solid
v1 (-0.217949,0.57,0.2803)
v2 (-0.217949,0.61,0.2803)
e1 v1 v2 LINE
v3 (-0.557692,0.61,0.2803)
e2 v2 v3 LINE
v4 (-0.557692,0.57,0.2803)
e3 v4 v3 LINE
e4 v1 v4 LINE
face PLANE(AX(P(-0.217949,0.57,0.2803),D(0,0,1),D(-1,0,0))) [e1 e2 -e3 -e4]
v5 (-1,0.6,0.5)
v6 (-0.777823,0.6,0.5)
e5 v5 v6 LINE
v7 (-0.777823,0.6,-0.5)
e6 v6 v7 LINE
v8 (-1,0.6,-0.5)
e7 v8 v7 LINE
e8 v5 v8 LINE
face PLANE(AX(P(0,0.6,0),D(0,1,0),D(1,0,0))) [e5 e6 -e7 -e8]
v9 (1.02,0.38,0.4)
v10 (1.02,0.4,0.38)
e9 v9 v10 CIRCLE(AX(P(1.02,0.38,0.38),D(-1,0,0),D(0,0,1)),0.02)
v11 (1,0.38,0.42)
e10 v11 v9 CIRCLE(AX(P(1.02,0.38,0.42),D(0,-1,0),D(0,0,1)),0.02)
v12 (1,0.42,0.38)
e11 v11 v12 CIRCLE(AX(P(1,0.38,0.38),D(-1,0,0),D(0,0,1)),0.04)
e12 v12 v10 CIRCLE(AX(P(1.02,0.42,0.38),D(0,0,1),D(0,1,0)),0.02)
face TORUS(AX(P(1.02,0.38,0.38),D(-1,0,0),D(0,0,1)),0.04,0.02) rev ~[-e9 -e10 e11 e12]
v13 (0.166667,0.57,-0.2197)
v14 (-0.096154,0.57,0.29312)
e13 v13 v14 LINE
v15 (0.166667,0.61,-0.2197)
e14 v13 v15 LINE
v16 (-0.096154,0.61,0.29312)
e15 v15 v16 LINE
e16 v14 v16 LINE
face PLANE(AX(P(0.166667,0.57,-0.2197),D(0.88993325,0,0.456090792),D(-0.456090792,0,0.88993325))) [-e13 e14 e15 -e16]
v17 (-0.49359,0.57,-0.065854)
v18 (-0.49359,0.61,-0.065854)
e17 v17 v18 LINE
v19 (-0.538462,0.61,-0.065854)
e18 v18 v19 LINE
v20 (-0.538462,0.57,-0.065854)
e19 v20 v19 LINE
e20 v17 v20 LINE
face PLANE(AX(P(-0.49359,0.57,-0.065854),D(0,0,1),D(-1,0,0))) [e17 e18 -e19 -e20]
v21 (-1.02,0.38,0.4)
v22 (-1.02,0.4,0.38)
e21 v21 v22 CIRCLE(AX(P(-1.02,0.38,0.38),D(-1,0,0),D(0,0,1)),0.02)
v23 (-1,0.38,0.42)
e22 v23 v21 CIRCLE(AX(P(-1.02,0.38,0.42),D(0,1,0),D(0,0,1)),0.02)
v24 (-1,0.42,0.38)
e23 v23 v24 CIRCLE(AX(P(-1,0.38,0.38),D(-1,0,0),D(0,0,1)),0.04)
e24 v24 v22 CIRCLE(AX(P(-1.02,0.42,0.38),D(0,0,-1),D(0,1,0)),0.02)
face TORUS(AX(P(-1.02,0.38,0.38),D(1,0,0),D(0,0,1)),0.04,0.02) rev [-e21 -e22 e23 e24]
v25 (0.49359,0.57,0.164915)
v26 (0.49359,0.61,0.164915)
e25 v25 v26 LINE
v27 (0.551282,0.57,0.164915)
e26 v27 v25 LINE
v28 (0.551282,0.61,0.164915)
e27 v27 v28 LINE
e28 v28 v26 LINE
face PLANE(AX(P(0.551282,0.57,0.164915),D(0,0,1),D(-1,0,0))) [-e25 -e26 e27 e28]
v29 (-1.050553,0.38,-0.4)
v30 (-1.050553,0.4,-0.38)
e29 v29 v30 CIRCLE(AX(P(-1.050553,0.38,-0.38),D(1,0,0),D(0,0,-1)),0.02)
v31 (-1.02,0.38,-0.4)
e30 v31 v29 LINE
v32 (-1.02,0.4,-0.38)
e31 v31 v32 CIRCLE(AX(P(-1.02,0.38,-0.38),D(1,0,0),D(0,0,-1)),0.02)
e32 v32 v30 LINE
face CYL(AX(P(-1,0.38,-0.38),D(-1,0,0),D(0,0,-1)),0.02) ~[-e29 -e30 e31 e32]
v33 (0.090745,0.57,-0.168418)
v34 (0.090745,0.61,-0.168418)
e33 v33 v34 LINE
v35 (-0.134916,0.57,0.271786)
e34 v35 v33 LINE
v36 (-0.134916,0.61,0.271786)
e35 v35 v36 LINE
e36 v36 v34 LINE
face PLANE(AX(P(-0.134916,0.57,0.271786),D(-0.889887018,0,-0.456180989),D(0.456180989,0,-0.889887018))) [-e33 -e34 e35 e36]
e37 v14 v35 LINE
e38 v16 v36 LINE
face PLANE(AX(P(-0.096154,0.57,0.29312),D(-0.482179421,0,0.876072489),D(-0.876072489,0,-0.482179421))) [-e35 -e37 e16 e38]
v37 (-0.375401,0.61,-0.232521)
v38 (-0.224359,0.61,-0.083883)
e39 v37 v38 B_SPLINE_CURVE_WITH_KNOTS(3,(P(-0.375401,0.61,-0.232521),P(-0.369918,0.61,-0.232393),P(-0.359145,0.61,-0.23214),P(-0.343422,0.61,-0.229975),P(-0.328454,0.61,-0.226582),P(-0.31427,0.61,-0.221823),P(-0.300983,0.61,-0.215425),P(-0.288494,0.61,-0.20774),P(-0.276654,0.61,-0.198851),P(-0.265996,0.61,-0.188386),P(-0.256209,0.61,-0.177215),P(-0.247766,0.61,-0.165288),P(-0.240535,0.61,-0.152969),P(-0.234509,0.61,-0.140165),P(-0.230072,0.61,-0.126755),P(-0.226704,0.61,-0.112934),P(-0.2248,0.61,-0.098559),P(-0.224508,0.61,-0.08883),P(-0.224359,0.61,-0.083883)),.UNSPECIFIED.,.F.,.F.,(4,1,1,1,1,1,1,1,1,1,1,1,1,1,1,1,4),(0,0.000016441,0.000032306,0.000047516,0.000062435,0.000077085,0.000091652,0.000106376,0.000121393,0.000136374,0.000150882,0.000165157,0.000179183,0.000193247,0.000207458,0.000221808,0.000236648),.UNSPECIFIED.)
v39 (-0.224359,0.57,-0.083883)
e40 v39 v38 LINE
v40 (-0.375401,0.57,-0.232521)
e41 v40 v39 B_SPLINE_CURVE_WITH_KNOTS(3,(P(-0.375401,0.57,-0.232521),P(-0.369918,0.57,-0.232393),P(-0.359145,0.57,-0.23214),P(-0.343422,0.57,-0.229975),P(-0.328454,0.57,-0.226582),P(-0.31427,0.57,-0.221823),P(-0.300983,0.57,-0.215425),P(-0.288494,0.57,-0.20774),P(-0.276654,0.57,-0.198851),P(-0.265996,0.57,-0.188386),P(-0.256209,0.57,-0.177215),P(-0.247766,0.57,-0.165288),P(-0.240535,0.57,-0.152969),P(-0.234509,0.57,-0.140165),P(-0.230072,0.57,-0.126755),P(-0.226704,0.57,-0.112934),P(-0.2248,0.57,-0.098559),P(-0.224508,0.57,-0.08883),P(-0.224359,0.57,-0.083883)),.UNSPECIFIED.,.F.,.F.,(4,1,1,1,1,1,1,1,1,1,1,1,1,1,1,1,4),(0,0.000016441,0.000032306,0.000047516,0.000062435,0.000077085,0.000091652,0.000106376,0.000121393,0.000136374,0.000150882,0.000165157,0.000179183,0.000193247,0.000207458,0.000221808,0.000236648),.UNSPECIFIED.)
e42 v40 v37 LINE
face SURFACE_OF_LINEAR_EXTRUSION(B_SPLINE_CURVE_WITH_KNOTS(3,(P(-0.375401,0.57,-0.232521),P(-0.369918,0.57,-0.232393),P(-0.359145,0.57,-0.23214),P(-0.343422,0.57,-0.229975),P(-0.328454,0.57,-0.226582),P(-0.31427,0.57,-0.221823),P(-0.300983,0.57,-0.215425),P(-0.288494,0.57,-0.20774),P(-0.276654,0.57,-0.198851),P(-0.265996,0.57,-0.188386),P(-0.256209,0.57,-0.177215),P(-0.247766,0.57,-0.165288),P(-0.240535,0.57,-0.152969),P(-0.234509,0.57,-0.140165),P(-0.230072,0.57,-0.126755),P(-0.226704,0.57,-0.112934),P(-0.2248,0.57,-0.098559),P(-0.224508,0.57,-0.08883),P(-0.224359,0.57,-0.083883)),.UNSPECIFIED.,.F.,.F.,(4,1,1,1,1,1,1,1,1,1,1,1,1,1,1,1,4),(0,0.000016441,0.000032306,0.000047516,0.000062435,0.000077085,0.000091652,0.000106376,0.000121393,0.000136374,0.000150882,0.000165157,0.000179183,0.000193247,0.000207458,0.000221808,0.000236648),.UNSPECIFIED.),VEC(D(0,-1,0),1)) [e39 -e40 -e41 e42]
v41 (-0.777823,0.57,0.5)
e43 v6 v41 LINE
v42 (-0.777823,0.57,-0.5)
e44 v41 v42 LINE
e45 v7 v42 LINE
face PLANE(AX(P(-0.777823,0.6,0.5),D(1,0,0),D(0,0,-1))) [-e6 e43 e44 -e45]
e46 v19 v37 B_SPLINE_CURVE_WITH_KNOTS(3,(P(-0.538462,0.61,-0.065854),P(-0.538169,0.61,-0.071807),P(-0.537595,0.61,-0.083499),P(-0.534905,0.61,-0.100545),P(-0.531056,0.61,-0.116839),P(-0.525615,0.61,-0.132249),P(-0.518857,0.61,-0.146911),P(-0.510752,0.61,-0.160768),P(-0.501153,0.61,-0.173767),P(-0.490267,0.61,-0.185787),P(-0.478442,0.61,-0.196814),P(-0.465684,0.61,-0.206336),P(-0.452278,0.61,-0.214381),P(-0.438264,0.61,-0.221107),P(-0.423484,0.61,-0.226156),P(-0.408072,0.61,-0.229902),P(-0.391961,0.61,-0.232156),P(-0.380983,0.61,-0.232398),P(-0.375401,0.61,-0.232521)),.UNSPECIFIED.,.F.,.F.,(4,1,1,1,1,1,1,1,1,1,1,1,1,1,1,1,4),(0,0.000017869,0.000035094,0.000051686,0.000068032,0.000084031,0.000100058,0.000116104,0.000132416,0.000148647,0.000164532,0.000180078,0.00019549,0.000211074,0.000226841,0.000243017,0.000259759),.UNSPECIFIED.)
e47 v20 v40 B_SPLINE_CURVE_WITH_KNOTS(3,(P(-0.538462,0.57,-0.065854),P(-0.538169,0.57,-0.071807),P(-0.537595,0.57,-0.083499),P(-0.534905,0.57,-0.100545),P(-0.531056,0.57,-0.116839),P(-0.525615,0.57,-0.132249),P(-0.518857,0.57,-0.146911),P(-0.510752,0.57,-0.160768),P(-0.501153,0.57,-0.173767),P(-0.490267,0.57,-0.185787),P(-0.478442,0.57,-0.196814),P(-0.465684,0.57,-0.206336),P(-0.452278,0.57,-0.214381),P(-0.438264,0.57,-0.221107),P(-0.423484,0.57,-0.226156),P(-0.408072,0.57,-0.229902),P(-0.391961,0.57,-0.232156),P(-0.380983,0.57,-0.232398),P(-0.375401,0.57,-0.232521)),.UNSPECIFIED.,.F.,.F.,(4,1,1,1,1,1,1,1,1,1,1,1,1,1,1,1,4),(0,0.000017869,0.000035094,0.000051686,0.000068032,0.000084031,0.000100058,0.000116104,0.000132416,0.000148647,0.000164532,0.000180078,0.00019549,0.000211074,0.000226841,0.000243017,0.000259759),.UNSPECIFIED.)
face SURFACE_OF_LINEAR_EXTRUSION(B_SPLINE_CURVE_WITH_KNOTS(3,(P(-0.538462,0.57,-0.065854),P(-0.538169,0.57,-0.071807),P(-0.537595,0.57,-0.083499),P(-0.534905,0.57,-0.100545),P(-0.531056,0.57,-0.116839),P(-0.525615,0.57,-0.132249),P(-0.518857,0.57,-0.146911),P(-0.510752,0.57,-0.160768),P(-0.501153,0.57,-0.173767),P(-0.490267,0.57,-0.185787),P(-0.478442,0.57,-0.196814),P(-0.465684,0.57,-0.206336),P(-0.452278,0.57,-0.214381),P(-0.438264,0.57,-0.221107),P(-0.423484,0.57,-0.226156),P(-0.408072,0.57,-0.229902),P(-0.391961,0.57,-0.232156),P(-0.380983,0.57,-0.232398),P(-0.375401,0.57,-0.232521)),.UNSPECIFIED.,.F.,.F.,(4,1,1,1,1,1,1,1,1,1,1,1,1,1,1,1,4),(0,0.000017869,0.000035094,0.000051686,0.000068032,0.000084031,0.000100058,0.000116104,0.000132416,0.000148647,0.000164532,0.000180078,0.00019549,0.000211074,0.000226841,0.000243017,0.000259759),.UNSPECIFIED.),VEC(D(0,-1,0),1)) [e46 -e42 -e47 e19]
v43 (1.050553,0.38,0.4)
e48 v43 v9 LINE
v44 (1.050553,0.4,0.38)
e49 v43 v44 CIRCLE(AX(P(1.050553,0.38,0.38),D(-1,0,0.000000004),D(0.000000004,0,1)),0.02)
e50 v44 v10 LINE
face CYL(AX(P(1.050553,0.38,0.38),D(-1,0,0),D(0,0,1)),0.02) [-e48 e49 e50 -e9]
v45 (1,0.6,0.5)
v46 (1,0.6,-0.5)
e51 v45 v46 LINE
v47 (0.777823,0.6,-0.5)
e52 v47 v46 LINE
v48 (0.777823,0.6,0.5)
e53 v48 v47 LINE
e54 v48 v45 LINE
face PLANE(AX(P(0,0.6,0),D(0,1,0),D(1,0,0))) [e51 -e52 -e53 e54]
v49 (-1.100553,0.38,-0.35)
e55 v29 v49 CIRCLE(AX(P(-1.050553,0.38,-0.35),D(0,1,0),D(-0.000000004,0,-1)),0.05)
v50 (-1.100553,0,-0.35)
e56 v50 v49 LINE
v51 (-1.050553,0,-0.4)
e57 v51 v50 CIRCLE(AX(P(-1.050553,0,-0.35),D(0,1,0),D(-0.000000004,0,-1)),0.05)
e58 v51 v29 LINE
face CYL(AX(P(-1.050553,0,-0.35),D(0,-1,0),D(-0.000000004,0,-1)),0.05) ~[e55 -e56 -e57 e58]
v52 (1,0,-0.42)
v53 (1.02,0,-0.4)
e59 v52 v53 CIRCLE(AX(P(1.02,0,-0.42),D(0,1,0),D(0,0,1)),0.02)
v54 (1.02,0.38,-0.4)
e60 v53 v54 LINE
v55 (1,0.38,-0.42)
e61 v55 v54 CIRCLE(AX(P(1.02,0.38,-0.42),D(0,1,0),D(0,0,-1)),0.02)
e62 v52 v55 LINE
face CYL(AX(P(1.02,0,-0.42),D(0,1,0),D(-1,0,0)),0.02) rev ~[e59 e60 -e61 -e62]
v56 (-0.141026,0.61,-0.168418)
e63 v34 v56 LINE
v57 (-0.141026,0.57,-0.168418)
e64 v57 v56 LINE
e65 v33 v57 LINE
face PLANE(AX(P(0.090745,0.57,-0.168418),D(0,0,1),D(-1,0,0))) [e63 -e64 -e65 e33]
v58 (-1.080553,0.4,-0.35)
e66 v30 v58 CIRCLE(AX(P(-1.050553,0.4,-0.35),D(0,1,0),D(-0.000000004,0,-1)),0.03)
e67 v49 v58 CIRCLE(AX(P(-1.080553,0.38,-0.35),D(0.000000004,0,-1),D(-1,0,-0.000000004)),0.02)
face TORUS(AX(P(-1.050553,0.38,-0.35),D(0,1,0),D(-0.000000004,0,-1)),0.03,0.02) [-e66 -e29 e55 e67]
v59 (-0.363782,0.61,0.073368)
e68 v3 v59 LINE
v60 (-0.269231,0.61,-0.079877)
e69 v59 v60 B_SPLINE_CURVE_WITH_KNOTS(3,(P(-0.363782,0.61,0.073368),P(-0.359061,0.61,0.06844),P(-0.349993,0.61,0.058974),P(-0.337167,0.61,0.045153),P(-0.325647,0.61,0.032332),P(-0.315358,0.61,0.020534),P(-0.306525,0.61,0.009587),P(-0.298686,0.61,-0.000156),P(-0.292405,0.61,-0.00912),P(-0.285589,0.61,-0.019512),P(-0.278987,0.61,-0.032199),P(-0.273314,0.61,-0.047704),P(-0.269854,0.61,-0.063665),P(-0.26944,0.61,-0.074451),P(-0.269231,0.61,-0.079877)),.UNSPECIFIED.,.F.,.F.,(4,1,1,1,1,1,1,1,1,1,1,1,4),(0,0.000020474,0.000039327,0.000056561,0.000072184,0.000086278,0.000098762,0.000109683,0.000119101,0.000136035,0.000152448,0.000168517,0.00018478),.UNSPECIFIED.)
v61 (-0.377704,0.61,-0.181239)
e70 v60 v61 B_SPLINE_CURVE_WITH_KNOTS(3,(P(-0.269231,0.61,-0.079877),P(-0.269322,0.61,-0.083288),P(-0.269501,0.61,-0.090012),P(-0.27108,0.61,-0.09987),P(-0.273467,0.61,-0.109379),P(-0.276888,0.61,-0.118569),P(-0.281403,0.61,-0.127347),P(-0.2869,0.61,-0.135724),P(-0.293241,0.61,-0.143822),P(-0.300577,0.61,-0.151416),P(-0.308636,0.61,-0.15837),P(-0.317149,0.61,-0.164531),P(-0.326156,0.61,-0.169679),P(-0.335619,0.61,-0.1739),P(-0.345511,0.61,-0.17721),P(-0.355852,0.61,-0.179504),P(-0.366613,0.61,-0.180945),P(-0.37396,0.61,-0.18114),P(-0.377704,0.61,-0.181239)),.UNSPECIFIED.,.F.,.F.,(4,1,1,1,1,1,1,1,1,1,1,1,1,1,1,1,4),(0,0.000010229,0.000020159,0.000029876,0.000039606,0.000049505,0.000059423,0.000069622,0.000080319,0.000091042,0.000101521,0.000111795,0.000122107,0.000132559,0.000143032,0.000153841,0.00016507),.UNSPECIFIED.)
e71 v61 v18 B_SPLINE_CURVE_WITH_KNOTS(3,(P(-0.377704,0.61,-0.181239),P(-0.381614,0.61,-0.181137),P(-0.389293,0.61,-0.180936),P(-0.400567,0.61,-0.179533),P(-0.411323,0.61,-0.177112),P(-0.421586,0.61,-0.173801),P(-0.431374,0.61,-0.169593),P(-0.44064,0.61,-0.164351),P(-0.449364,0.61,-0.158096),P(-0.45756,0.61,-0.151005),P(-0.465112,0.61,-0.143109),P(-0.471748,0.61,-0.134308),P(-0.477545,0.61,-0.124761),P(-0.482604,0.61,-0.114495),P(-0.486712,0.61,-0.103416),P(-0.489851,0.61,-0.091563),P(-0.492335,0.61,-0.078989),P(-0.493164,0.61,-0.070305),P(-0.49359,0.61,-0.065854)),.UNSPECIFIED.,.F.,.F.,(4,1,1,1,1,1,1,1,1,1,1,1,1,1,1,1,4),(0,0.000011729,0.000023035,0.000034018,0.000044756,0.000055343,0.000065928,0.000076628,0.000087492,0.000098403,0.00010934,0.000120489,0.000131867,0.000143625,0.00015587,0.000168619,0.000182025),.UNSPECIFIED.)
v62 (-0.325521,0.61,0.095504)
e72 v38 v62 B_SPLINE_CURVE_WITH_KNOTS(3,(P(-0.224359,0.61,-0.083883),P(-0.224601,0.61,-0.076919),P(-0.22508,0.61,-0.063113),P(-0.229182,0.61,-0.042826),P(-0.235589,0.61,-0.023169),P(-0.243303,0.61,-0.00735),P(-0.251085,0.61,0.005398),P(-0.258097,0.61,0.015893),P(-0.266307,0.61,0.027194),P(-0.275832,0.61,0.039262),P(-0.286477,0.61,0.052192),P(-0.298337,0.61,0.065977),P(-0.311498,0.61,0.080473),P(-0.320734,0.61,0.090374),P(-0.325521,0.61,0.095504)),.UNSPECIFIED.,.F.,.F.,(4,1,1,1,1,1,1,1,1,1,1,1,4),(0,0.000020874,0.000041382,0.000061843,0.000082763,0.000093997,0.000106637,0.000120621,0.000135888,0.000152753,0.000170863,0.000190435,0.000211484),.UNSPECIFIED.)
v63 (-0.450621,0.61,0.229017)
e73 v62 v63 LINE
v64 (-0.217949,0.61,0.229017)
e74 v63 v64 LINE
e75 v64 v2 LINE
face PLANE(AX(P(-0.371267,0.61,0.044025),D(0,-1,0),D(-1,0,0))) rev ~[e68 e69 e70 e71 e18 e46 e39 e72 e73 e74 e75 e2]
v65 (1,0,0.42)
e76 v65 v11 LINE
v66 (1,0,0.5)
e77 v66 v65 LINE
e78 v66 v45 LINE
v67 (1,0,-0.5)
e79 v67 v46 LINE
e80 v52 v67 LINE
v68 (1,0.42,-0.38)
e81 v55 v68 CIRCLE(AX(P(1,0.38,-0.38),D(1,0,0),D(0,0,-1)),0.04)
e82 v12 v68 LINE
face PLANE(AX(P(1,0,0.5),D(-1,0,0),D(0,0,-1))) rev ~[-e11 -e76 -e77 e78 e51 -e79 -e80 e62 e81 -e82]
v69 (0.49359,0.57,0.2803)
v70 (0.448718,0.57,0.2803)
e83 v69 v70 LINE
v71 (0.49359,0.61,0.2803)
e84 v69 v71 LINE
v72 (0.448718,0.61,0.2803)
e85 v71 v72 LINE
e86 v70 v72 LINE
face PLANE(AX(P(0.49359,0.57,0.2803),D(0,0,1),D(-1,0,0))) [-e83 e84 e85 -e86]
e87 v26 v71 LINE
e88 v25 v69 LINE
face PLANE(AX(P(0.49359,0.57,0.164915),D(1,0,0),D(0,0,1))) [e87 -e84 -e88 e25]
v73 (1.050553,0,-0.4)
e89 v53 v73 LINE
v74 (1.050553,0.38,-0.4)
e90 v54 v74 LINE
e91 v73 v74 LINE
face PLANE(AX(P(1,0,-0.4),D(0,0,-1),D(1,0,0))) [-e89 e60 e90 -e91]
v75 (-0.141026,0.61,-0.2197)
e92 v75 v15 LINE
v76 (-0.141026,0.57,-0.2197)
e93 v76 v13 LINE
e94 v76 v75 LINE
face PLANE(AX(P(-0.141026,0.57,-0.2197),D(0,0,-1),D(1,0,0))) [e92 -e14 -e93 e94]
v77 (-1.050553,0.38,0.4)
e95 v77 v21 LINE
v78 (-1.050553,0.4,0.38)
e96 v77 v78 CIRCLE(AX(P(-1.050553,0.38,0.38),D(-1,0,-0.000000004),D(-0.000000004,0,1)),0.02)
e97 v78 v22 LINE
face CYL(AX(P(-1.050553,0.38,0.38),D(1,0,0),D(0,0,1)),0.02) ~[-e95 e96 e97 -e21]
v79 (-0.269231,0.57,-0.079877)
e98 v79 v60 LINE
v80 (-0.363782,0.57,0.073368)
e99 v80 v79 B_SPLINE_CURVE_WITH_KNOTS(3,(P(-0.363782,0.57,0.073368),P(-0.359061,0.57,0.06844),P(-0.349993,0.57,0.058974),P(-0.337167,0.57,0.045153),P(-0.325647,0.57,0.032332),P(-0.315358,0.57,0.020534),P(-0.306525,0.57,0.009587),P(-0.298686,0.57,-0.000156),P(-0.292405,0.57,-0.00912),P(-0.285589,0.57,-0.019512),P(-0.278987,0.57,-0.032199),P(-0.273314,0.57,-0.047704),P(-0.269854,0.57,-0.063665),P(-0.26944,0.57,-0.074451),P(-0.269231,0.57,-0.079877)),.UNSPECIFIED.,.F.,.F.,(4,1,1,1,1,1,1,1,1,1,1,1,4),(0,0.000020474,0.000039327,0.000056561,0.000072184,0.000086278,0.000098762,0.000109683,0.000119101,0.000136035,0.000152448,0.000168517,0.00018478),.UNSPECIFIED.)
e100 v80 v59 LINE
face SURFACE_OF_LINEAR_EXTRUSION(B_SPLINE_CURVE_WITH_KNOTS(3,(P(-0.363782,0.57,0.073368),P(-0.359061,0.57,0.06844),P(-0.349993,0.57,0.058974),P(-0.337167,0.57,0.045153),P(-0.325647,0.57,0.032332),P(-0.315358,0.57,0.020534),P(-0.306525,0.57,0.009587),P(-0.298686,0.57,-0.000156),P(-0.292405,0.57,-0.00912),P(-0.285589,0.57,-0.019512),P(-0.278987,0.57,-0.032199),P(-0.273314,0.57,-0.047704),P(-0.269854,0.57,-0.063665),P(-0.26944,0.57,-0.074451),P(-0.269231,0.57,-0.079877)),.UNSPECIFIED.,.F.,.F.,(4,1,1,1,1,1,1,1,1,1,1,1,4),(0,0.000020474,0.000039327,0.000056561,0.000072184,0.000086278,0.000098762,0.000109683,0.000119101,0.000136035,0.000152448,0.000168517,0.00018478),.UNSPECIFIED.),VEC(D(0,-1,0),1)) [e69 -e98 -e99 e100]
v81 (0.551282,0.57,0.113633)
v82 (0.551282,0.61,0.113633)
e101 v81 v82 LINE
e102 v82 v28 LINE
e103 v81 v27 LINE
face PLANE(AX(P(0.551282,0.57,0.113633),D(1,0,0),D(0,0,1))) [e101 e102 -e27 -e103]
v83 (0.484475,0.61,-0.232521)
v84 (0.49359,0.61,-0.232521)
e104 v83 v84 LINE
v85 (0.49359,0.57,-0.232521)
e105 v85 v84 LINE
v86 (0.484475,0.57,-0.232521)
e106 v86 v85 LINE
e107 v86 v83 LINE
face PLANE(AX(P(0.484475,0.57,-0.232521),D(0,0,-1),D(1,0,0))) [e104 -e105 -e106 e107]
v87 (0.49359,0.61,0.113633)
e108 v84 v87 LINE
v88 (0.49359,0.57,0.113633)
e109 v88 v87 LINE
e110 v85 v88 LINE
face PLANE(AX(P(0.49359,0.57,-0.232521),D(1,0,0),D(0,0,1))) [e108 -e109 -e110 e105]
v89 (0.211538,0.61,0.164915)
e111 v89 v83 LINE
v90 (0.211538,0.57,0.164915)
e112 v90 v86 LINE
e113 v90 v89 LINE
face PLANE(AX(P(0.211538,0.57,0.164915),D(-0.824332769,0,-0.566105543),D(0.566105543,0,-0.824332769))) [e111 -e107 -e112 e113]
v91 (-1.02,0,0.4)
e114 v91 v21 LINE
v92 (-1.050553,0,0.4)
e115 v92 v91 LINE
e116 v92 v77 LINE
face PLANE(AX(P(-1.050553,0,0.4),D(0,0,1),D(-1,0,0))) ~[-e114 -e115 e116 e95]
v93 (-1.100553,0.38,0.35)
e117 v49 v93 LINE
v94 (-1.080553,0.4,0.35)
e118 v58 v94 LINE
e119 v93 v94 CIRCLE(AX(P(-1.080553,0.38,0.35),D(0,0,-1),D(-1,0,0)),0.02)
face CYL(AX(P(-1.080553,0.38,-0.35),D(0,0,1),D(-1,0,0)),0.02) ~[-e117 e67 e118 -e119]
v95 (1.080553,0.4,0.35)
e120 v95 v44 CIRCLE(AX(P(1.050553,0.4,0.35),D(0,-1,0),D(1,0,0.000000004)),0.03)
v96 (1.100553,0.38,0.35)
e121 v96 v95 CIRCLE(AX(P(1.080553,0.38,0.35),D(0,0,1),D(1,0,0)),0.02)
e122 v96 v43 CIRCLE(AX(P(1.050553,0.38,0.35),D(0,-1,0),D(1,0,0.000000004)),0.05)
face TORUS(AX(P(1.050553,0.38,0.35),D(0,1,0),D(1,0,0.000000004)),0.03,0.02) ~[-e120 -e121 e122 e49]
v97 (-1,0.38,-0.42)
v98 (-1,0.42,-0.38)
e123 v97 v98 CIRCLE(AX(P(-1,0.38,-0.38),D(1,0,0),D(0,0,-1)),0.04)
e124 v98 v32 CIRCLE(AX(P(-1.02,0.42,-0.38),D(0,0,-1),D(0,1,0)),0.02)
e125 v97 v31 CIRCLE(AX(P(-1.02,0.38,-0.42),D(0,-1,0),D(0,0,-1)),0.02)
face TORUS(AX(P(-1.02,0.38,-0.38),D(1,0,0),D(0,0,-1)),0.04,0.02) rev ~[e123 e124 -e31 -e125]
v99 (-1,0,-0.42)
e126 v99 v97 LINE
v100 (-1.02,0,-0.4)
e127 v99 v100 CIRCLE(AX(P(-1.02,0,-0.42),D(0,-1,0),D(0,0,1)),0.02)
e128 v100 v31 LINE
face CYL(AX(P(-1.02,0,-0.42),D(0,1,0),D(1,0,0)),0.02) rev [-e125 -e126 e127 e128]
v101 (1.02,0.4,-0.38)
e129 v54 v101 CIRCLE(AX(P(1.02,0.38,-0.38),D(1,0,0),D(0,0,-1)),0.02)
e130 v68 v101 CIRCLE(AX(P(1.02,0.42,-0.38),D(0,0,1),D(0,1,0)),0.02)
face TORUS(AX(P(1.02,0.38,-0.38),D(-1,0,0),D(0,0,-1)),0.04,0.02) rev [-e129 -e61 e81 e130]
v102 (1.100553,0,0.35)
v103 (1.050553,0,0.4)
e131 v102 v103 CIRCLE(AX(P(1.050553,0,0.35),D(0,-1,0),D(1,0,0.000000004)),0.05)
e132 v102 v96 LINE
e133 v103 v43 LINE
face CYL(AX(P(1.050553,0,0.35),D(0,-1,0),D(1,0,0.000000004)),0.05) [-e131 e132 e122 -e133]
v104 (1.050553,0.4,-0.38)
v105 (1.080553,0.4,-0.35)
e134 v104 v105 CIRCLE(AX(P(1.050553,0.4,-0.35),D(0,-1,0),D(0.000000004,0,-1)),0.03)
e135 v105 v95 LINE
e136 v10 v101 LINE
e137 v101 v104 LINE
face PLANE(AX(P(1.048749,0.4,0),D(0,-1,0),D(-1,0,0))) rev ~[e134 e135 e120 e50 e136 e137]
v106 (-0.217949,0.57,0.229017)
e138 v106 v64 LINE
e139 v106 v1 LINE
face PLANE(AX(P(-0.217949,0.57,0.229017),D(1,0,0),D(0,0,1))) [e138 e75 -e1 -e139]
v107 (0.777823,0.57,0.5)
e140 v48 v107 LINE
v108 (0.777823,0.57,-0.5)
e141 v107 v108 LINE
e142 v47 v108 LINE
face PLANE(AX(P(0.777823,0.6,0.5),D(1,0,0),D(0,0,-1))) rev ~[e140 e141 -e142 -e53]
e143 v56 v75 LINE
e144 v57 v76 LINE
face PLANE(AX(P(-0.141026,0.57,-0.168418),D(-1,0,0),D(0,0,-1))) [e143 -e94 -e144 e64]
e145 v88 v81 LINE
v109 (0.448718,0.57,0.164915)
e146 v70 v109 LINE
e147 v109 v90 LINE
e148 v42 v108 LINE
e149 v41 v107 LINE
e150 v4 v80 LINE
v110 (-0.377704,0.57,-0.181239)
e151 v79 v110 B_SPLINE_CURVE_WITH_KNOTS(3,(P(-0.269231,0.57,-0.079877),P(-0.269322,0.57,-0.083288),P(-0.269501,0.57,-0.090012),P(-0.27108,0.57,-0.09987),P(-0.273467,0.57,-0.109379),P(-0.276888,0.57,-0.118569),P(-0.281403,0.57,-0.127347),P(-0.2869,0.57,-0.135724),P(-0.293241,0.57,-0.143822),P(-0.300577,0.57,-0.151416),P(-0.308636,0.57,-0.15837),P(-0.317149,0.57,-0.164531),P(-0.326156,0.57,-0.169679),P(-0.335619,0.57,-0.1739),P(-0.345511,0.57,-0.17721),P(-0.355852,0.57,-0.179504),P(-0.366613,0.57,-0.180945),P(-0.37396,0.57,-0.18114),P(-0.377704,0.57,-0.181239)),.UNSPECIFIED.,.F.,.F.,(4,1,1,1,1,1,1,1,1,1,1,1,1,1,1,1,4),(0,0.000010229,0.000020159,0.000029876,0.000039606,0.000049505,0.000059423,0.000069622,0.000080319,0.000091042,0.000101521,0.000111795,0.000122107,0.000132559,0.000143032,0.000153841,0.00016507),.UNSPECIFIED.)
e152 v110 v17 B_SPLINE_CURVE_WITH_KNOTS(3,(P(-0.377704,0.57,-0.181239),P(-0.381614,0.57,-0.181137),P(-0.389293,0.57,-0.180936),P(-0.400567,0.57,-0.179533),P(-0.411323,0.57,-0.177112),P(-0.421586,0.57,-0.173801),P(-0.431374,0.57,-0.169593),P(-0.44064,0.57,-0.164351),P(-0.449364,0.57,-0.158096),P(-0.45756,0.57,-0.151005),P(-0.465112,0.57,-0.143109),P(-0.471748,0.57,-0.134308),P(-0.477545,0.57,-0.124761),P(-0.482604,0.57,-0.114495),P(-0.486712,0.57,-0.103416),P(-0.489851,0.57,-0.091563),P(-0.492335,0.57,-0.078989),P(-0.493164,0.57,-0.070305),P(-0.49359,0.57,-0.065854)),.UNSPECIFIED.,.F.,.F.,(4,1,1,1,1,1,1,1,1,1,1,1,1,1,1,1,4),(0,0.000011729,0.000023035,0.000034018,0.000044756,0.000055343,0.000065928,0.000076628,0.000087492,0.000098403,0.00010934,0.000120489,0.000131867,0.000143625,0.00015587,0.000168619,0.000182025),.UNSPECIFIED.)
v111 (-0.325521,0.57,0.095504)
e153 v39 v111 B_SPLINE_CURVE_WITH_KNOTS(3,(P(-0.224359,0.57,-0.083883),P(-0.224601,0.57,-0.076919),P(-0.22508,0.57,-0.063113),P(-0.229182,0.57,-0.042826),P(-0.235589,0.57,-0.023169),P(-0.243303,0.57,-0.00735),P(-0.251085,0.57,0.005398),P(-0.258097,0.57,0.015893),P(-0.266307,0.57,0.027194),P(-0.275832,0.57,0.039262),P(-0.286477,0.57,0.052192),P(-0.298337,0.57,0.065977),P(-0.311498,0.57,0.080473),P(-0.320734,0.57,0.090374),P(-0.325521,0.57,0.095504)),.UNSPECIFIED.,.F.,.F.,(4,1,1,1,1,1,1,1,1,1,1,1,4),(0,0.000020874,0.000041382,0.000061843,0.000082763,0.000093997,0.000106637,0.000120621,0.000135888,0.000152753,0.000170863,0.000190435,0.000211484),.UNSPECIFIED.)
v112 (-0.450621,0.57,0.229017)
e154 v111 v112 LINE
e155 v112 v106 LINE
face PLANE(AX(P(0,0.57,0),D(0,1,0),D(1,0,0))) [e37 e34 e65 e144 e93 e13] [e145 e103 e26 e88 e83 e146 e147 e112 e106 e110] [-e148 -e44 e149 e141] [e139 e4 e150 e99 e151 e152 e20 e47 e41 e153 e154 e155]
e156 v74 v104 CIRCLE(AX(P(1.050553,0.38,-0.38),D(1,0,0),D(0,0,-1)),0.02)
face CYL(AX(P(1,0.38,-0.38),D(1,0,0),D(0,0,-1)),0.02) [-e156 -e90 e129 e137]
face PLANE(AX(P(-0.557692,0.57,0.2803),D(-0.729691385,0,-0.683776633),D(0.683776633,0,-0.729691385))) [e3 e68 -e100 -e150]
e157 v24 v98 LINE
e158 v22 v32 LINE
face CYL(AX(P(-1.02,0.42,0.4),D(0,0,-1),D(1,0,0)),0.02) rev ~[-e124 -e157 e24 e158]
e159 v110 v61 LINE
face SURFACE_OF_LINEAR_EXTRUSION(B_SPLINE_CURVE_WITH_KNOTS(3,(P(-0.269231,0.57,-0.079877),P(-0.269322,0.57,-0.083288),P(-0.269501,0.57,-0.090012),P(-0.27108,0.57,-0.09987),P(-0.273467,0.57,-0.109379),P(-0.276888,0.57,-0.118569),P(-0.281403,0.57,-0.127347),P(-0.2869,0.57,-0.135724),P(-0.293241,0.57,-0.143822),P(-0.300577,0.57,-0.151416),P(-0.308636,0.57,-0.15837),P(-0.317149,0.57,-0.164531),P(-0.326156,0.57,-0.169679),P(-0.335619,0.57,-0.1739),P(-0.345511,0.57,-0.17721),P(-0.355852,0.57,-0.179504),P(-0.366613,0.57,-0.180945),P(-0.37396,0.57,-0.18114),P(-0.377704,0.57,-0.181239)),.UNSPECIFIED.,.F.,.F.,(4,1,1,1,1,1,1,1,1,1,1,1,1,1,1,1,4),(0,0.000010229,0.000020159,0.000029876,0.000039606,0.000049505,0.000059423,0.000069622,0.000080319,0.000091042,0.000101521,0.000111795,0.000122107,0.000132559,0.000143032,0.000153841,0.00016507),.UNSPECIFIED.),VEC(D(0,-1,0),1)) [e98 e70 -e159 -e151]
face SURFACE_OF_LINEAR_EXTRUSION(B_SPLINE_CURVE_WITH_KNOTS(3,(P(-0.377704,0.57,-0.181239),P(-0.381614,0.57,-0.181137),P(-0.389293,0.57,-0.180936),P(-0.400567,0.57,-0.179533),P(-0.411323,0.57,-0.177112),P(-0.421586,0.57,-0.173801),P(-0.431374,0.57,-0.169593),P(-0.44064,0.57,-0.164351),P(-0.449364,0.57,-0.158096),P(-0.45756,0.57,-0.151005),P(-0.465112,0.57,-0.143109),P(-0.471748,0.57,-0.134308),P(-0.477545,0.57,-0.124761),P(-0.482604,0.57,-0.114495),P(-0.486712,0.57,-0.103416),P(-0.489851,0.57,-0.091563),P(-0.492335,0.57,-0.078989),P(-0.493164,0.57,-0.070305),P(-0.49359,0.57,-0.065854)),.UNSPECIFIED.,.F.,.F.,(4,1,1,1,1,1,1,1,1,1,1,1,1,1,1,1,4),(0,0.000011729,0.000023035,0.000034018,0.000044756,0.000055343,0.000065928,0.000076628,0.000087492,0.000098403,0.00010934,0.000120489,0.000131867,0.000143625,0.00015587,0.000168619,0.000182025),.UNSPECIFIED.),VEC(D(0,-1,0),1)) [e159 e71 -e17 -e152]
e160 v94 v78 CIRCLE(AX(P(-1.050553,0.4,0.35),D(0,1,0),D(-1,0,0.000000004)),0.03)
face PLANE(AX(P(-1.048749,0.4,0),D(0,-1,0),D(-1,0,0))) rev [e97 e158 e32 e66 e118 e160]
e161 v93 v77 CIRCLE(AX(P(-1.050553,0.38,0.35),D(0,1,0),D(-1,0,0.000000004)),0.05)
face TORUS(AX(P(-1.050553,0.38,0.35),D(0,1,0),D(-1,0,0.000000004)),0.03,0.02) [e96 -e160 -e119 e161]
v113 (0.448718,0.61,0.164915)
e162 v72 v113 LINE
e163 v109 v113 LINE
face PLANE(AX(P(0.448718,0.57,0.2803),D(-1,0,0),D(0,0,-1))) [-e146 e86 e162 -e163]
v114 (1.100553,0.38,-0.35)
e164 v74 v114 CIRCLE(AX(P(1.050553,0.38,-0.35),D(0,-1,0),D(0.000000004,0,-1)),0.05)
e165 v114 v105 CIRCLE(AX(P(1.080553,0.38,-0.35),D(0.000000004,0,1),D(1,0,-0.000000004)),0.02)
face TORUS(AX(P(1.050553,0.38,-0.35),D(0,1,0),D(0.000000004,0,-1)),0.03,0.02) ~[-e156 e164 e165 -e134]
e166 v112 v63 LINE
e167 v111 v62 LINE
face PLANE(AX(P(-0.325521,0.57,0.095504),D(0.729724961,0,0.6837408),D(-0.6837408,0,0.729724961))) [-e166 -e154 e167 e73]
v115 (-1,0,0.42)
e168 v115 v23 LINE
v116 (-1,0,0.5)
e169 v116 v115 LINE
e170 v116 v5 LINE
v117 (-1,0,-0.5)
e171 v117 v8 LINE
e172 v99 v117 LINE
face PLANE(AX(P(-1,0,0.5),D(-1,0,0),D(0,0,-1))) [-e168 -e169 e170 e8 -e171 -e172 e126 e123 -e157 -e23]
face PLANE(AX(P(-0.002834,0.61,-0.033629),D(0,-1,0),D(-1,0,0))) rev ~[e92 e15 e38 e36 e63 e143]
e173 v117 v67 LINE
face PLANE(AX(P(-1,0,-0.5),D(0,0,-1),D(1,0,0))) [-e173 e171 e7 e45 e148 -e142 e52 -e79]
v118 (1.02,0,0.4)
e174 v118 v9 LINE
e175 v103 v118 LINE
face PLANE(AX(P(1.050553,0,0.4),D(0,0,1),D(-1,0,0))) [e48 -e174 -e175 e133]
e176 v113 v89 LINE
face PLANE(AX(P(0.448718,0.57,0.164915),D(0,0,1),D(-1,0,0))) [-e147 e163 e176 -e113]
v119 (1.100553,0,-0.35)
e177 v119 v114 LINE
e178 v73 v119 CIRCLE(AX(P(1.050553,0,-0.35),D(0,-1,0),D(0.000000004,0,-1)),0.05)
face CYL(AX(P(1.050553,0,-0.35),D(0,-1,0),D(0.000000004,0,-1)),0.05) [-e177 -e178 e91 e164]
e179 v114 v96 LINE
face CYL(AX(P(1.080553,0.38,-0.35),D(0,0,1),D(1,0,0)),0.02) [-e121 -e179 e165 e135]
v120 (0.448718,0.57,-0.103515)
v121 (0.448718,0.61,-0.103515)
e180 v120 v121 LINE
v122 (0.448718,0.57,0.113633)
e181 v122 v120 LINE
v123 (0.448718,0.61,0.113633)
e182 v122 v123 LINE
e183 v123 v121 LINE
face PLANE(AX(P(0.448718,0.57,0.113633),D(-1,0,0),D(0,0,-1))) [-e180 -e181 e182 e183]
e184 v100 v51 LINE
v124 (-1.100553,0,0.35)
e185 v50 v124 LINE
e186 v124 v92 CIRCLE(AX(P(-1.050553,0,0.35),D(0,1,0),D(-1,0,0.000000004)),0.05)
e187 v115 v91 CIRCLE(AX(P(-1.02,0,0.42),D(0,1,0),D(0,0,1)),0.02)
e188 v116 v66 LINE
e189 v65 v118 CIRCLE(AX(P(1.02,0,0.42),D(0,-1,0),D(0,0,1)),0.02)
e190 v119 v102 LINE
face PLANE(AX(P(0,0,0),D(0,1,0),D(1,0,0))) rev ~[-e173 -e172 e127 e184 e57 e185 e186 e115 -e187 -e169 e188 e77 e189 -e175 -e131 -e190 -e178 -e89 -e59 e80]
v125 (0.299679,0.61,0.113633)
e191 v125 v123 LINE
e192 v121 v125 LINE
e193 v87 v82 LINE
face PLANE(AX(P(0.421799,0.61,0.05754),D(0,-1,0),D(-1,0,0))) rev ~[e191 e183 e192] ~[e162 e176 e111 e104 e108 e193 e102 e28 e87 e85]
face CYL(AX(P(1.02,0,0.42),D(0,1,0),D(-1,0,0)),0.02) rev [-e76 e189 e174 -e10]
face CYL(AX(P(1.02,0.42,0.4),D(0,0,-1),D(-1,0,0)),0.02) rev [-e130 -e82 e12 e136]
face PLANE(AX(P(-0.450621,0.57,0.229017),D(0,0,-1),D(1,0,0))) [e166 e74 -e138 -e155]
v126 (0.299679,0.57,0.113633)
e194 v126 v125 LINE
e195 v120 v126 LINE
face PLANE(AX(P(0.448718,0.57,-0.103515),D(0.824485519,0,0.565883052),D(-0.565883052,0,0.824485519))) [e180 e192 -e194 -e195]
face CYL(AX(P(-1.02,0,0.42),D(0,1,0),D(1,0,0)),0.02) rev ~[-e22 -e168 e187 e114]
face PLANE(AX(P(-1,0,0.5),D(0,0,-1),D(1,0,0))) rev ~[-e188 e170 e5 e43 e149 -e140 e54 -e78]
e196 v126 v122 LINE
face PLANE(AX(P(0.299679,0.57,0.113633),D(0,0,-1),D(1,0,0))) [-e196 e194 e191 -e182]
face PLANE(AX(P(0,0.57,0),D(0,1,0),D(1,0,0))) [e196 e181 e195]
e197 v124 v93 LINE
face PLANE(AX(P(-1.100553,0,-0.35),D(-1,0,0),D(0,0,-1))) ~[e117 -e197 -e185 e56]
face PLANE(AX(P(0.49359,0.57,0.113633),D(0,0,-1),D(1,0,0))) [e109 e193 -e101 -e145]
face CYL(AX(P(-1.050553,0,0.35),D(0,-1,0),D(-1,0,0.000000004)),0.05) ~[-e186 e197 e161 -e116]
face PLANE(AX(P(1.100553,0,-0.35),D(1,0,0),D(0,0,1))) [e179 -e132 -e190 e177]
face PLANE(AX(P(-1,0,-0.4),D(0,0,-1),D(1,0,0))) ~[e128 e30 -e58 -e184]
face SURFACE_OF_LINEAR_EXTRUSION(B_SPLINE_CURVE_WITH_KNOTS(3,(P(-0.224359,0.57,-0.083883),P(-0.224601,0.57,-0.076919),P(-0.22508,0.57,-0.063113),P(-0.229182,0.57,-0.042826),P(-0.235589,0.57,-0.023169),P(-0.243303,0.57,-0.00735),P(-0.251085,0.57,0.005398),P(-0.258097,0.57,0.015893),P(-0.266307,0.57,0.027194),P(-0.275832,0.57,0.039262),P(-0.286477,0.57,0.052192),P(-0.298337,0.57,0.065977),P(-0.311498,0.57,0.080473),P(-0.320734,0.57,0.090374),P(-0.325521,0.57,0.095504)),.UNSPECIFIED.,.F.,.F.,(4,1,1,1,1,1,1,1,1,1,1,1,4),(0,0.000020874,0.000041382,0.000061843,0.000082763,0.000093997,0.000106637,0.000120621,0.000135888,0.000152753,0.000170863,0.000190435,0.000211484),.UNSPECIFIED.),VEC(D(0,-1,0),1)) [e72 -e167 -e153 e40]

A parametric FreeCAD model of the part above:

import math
import FreeCAD as App
import Part
import Sketcher
from FreeCAD import Vector


def edges_at(feature, points):
    """Names of the edges that pass closest to the given points."""
    edges = feature.Shape.Edges
    near = lambda p: min(range(len(edges)), key=lambda i: edges[i].distToShape(Part.Vertex(*p))[0])
    return sorted({f"Edge{near(p) + 1}" for p in points})


def add_polygon(sketch, points):
    """Adds a closed chain of lines whose ends are joined by coincident constraints."""
    first, n = sketch.GeometryCount, len(points)
    for a, b in zip(points, points[1:] + points[:1]):
        sketch.addGeometry(Part.LineSegment(App.Vector(*a, 0), App.Vector(*b, 0)), False)
    for i in range(n):
        sketch.addConstraint(Sketcher.Constraint("Coincident", first + i, 2, first + (i + 1) % n, 1))

doc = App.newDocument("Part")
params = doc.addObject("Spreadsheet::Sheet", "Params")
for row, (alias, value) in enumerate([
    ("sketch1_width", "2 mm"),
    ("sketch1_height", "1 mm"),
    ("pad1_length", "0.6 mm"),
    ("sketch2_height", "1 mm"),
    ("pocket1_length", "0.03 mm"),
    ("sketch3_radius", "0.05 mm"),
    ("sketch3_height", "0.8 mm"),
    ("pad2_length", "0.4 mm"),
    ("fillet_radius", "0.02 mm"),
    ("fillet2_radius", "0.02 mm"),
    ("pad3_length", "0.04 mm"),
], start=1):
    params.set(f"A{row}", alias)
    params.set(f"B{row}", "=" + value)
    params.setAlias(f"B{row}", alias)

body = doc.addObject("PartDesign::Body", "Body")

# Sketch on XZ plane
sketch1 = doc.addObject("Sketcher::SketchObject", "Sketch")
body.addObject(sketch1)
sketch1.AttachmentSupport = (doc.XZ_Plane, [""])
sketch1.MapMode = "FlatFace"
add_polygon(sketch1, [(-1, -0.5), (-1, 0.5), (1, 0.5), (1, -0.5)])  # lines 0-3
sketch1.addConstraint(Sketcher.Constraint("Vertical", 0))
sketch1.addConstraint(Sketcher.Constraint("Horizontal", 1))
sketch1.addConstraint(Sketcher.Constraint("Vertical", 2))
sketch1.addConstraint(Sketcher.Constraint("Horizontal", 3))
sketch1.addConstraint(Sketcher.Constraint("Symmetric", 0, 2, 2, 2, -1, 1))
sketch1.addConstraint(Sketcher.Constraint("DistanceX", 1, 1, 1, 2, 2.0))
sketch1.addConstraint(Sketcher.Constraint("DistanceY", 0, 1, 0, 2, 1.0))
sketch1.setExpression("Constraints[9]", "Params.sketch1_width")
sketch1.setExpression("Constraints[10]", "Params.sketch1_height")
pad1 = doc.addObject("PartDesign::Pad", "Pad")
body.addObject(pad1)
pad1.Profile = sketch1
pad1.setExpression("Length", "Params.pad1_length")
pad1.Reversed = True

# Sketch on XZ plane
sketch2 = doc.addObject("Sketcher::SketchObject", "Sketch001")
body.addObject(sketch2)
sketch2.AttachmentSupport = (doc.XZ_Plane, [""])
sketch2.MapMode = "FlatFace"
sketch2.AttachmentOffset = App.Placement(Vector(0, 0, -0.6), App.Rotation())
add_polygon(sketch2, [(-0.8, -0.5), (-0.8, 0.5), (0.8, 0.5), (0.8, -0.5)])  # lines 0-3
sketch2.addConstraint(Sketcher.Constraint("Vertical", 0))
sketch2.addConstraint(Sketcher.Constraint("Horizontal", 1))
sketch2.addConstraint(Sketcher.Constraint("Vertical", 2))
sketch2.addConstraint(Sketcher.Constraint("Horizontal", 3))
sketch2.addConstraint(Sketcher.Constraint("Symmetric", 0, 2, 2, 2, -1, 1))
sketch2.addConstraint(Sketcher.Constraint("DistanceY", 0, 1, 0, 2, 1.0))
sketch2.addConstraint(Sketcher.Constraint("DistanceX", 1, 1, 1, 2, 1.555645))
sketch2.setExpression("Constraints[9]", "Params.sketch2_height")
pocket1 = doc.addObject("PartDesign::Pocket", "Pocket")
body.addObject(pocket1)
pocket1.Profile = sketch2
pocket1.setExpression("Length", "Params.pocket1_length")
pocket1.Reversed = True

# Sketch on XZ plane
sketch3 = doc.addObject("Sketcher::SketchObject", "Sketch002")
body.addObject(sketch3)
sketch3.AttachmentSupport = (doc.XZ_Plane, [""])
sketch3.MapMode = "FlatFace"
sketch3.addGeometry(Part.LineSegment(Vector(1.05, -0.4, 0), Vector(1, -0.4, 0)), False)
sketch3.addGeometry(Part.LineSegment(Vector(1, -0.4, 0), Vector(1, 0.4, 0)), False)
sketch3.addGeometry(Part.LineSegment(Vector(1, 0.4, 0), Vector(1.05, 0.4, 0)), False)
sketch3.addGeometry(Part.ArcOfCircle(Part.Circle(Vector(1.05, 0.35, 0), Vector(0, 0, 1), 0.05), math.radians(0), math.radians(90)), False)
sketch3.addGeometry(Part.LineSegment(Vector(1.1, 0.35, 0), Vector(1.1, -0.35, 0)), False)
sketch3.addGeometry(Part.ArcOfCircle(Part.Circle(Vector(1.05, -0.35, 0), Vector(0, 0, 1), 0.05), math.radians(-90), math.radians(0)), False)
sketch3.addConstraint(Sketcher.Constraint("Coincident", 0, 2, 1, 1))
sketch3.addConstraint(Sketcher.Constraint("Coincident", 1, 2, 2, 1))
sketch3.addConstraint(Sketcher.Constraint("Tangent", 2, 2, 3, 2))
sketch3.addConstraint(Sketcher.Constraint("Tangent", 3, 1, 4, 1))
sketch3.addConstraint(Sketcher.Constraint("Tangent", 4, 2, 5, 2))
sketch3.addConstraint(Sketcher.Constraint("Tangent", 5, 1, 0, 1))
sketch3.addConstraint(Sketcher.Constraint("Horizontal", 0))
sketch3.addConstraint(Sketcher.Constraint("Vertical", 1))
sketch3.addConstraint(Sketcher.Constraint("Horizontal", 2))
sketch3.addConstraint(Sketcher.Constraint("Vertical", 4))
sketch3.addConstraint(Sketcher.Constraint("Equal", 3, 5))
sketch3.addConstraint(Sketcher.Constraint("Radius", 3, 0.05))
sketch3.addConstraint(Sketcher.Constraint("DistanceY", 1, 1, 1, 2, 0.8))
sketch3.addConstraint(Sketcher.Constraint("DistanceX", -1, 1, 0, 2, 1.0))
sketch3.addConstraint(Sketcher.Constraint("DistanceY", 0, 2, -1, 1, 0.4))
sketch3.addConstraint(Sketcher.Constraint("DistanceX", 0, 2, 0, 1, 0.050553))
sketch3.setExpression("Constraints[11]", "Params.sketch3_radius")
sketch3.setExpression("Constraints[12]", "Params.sketch3_height")
pad2 = doc.addObject("PartDesign::Pad", "Pad001")
body.addObject(pad2)
pad2.Profile = sketch3
pad2.setExpression("Length", "Params.pad2_length")
pad2.Reversed = True
doc.recompute()

fillet = doc.addObject("PartDesign::Fillet", "Fillet")
body.addObject(fillet)
fillet.Base = (pad2, edges_at(pad2, [
    (1, 0.2, -0.4),
    (1, 0.2, 0.4),
    (1, 0.4, 0),
    (1.025, 0.4, 0.4),
    (1.086, 0.4, 0.385),
    (1.101, 0.4, 0),
    (1.086, 0.4, -0.385),
    (1.025, 0.4, -0.4),
]))
fillet.setExpression("Radius", "Params.fillet_radius")
doc.recompute()

mirrored = doc.addObject("PartDesign::Mirrored", "Mirrored")
body.addObject(mirrored)
mirrored.Originals = [pad2]
mirrored.MirrorPlane = (doc.YZ_Plane, [""])
body.Tip = mirrored
doc.recompute()

fillet2 = doc.addObject("PartDesign::Fillet", "Fillet001")
body.addObject(fillet2)
fillet2.Base = (mirrored, edges_at(mirrored, [
    (-1, 0.2, -0.4),
    (-1, 0.2, 0.4),
    (-1, 0.4, 0),
    (-1.025, 0.4, 0.4),
    (-1.086, 0.4, 0.385),
    (-1.101, 0.4, 0),
    (-1.086, 0.4, -0.385),
    (-1.025, 0.4, -0.4),
]))
fillet2.setExpression("Radius", "Params.fillet2_radius")

# Sketch on XZ plane
sketch4 = doc.addObject("Sketcher::SketchObject", "Sketch003")
body.addObject(sketch4)
sketch4.AttachmentSupport = (doc.XZ_Plane, [""])
sketch4.MapMode = "FlatFace"
sketch4.AttachmentOffset = App.Placement(Vector(0, 0, -0.57), App.Rotation())
add_polygon(sketch4, [(0.49359, -0.232521), (0.484475, -0.232521), (0.211538, 0.164915), (0.448718, 0.164915), (0.448718, 0.2803), (0.49359, 0.2803), (0.49359, 0.164915), (0.551282, 0.164915), (0.551282, 0.113633), (0.49359, 0.113633)])  # lines 0-9
add_polygon(sketch4, [(0.448718, 0.113633), (0.299679, 0.113633), (0.448718, -0.103515)])  # lines 10-12
add_polygon(sketch4, [(0.166667, -0.2197), (-0.141026, -0.2197), (-0.141026, -0.168418), (0.090745, -0.168418), (-0.134916, 0.271786), (-0.096154, 0.29312)])  # lines 13-18
sketch4.addGeometry(Part.LineSegment(Vector(-0.538462, -0.065854, 0), Vector(-0.49359, -0.065854, 0)), False)  # 19
sketch4.addGeometry(Part.BSplineCurve([Vector(-0.377704, -0.181239, 0), Vector(-0.381614, -0.181137, 0), Vector(-0.389293, -0.180936, 0), Vector(-0.400567, -0.179533, 0), Vector(-0.411323, -0.177112, 0), Vector(-0.421586, -0.173801, 0), Vector(-0.431374, -0.169593, 0), Vector(-0.44064, -0.164351, 0), Vector(-0.449364, -0.158096, 0), Vector(-0.45756, -0.151005, 0), Vector(-0.465112, -0.143109, 0), Vector(-0.471748, -0.134308, 0), Vector(-0.477545, -0.124761, 0), Vector(-0.482604, -0.114495, 0), Vector(-0.486712, -0.103416, 0), Vector(-0.489851, -0.091563, 0), Vector(-0.492335, -0.078989, 0), Vector(-0.493164, -0.070305, 0), Vector(-0.49359, -0.065854, 0)], [4, 1, 1, 1, 1, 1, 1, 1, 1, 1, 1, 1, 1, 1, 1, 1, 4], [0, 0.000011729, 0.000023035, 0.000034018, 0.000044756, 0.000055343, 0.000065928, 0.000076628, 0.000087492, 0.000098403, 0.00010934, 0.000120489, 0.000131867, 0.000143625, 0.00015587, 0.000168619, 0.000182025], False, 3, [1, 1, 1, 1, 1, 1, 1, 1, 1, 1, 1, 1, 1, 1, 1, 1, 1, 1, 1], False), False)  # 20
sketch4.addGeometry(Part.BSplineCurve([Vector(-0.269231, -0.079877, 0), Vector(-0.269322, -0.083288, 0), Vector(-0.269501, -0.090012, 0), Vector(-0.27108, -0.09987, 0), Vector(-0.273467, -0.109379, 0), Vector(-0.276888, -0.118569, 0), Vector(-0.281403, -0.127347, 0), Vector(-0.2869, -0.135724, 0), Vector(-0.293241, -0.143822, 0), Vector(-0.300577, -0.151416, 0), Vector(-0.308636, -0.15837, 0), Vector(-0.317149, -0.164531, 0), Vector(-0.326156, -0.169679, 0), Vector(-0.335619, -0.1739, 0), Vector(-0.345511, -0.17721, 0), Vector(-0.355852, -0.179504, 0), Vector(-0.366613, -0.180945, 0), Vector(-0.37396, -0.18114, 0), Vector(-0.377704, -0.181239, 0)], [4, 1, 1, 1, 1, 1, 1, 1, 1, 1, 1, 1, 1, 1, 1, 1, 4], [0, 0.000010229, 0.000020159, 0.000029876, 0.000039606, 0.000049505, 0.000059423, 0.000069622, 0.000080319, 0.000091042, 0.000101521, 0.000111795, 0.000122107, 0.000132559, 0.000143032, 0.000153841, 0.00016507], False, 3, [1, 1, 1, 1, 1, 1, 1, 1, 1, 1, 1, 1, 1, 1, 1, 1, 1, 1, 1], False), False)  # 21
sketch4.addGeometry(Part.BSplineCurve([Vector(-0.363782, 0.073368, 0), Vector(-0.359061, 0.06844, 0), Vector(-0.349993, 0.058974, 0), Vector(-0.337167, 0.045153, 0), Vector(-0.325647, 0.032332, 0), Vector(-0.315358, 0.020534, 0), Vector(-0.306525, 0.009587, 0), Vector(-0.298686, -0.000156, 0), Vector(-0.292405, -0.00912, 0), Vector(-0.285589, -0.019512, 0), Vector(-0.278987, -0.032199, 0), Vector(-0.273314, -0.047704, 0), Vector(-0.269854, -0.063665, 0), Vector(-0.26944, -0.074451, 0), Vector(-0.269231, -0.079877, 0)], [4, 1, 1, 1, 1, 1, 1, 1, 1, 1, 1, 1, 4], [0, 0.000020474, 0.000039327, 0.000056561, 0.000072184, 0.000086278, 0.000098762, 0.000109683, 0.000119101, 0.000136035, 0.000152448, 0.000168517, 0.00018478], False, 3, [1, 1, 1, 1, 1, 1, 1, 1, 1, 1, 1, 1, 1, 1, 1], False), False)  # 22
sketch4.addGeometry(Part.LineSegment(Vector(-0.363782, 0.073368, 0), Vector(-0.557692, 0.2803, 0)), False)  # 23
sketch4.addGeometry(Part.LineSegment(Vector(-0.557692, 0.2803, 0), Vector(-0.217949, 0.2803, 0)), False)  # 24
sketch4.addGeometry(Part.LineSegment(Vector(-0.217949, 0.2803, 0), Vector(-0.217949, 0.229017, 0)), False)  # 25
sketch4.addGeometry(Part.LineSegment(Vector(-0.217949, 0.229017, 0), Vector(-0.450621, 0.229017, 0)), False)  # 26
sketch4.addGeometry(Part.LineSegment(Vector(-0.450621, 0.229017, 0), Vector(-0.325521, 0.095504, 0)), False)  # 27
sketch4.addGeometry(Part.BSplineCurve([Vector(-0.224359, -0.083883, 0), Vector(-0.224601, -0.076919, 0), Vector(-0.22508, -0.063113, 0), Vector(-0.229182, -0.042826, 0), Vector(-0.235589, -0.023169, 0), Vector(-0.243303, -0.00735, 0), Vector(-0.251085, 0.005398, 0), Vector(-0.258097, 0.015893, 0), Vector(-0.266307, 0.027194, 0), Vector(-0.275832, 0.039262, 0), Vector(-0.286477, 0.052192, 0), Vector(-0.298337, 0.065977, 0), Vector(-0.311498, 0.080473, 0), Vector(-0.320734, 0.090374, 0), Vector(-0.325521, 0.095504, 0)], [4, 1, 1, 1, 1, 1, 1, 1, 1, 1, 1, 1, 4], [0, 0.000020874, 0.000041382, 0.000061843, 0.000082763, 0.000093997, 0.000106637, 0.000120621, 0.000135888, 0.000152753, 0.000170863, 0.000190435, 0.000211484], False, 3, [1, 1, 1, 1, 1, 1, 1, 1, 1, 1, 1, 1, 1, 1, 1], False), False)  # 28
sketch4.addGeometry(Part.BSplineCurve([Vector(-0.375401, -0.232521, 0), Vector(-0.369918, -0.232393, 0), Vector(-0.359145, -0.23214, 0), Vector(-0.343422, -0.229975, 0), Vector(-0.328454, -0.226582, 0), Vector(-0.31427, -0.221823, 0), Vector(-0.300983, -0.215425, 0), Vector(-0.288494, -0.20774, 0), Vector(-0.276654, -0.198851, 0), Vector(-0.265996, -0.188386, 0), Vector(-0.256209, -0.177215, 0), Vector(-0.247766, -0.165288, 0), Vector(-0.240535, -0.152969, 0), Vector(-0.234509, -0.140165, 0), Vector(-0.230072, -0.126755, 0), Vector(-0.226704, -0.112934, 0), Vector(-0.2248, -0.098559, 0), Vector(-0.224508, -0.08883, 0), Vector(-0.224359, -0.083883, 0)], [4, 1, 1, 1, 1, 1, 1, 1, 1, 1, 1, 1, 1, 1, 1, 1, 4], [0, 0.000016441, 0.000032306, 0.000047516, 0.000062435, 0.000077085, 0.000091652, 0.000106376, 0.000121393, 0.000136374, 0.000150882, 0.000165157, 0.000179183, 0.000193247, 0.000207458, 0.000221808, 0.000236648], False, 3, [1, 1, 1, 1, 1, 1, 1, 1, 1, 1, 1, 1, 1, 1, 1, 1, 1, 1, 1], False), False)  # 29
sketch4.addGeometry(Part.BSplineCurve([Vector(-0.538462, -0.065854, 0), Vector(-0.538169, -0.071807, 0), Vector(-0.537595, -0.083499, 0), Vector(-0.534905, -0.100545, 0), Vector(-0.531056, -0.116839, 0), Vector(-0.525615, -0.132249, 0), Vector(-0.518857, -0.146911, 0), Vector(-0.510752, -0.160768, 0), Vector(-0.501153, -0.173767, 0), Vector(-0.490267, -0.185787, 0), Vector(-0.478442, -0.196814, 0), Vector(-0.465684, -0.206336, 0), Vector(-0.452278, -0.214381, 0), Vector(-0.438264, -0.221107, 0), Vector(-0.423484, -0.226156, 0), Vector(-0.408072, -0.229902, 0), Vector(-0.391961, -0.232156, 0), Vector(-0.380983, -0.232398, 0), Vector(-0.375401, -0.232521, 0)], [4, 1, 1, 1, 1, 1, 1, 1, 1, 1, 1, 1, 1, 1, 1, 1, 4], [0, 0.000017869, 0.000035094, 0.000051686, 0.000068032, 0.000084031, 0.000100058, 0.000116104, 0.000132416, 0.000148647, 0.000164532, 0.000180078, 0.00019549, 0.000211074, 0.000226841, 0.000243017, 0.000259759], False, 3, [1, 1, 1, 1, 1, 1, 1, 1, 1, 1, 1, 1, 1, 1, 1, 1, 1, 1, 1], False), False)  # 30
sketch4.addConstraint(Sketcher.Constraint("Block", 20))
sketch4.addConstraint(Sketcher.Constraint("Block", 21))
sketch4.addConstraint(Sketcher.Constraint("Block", 22))
sketch4.addConstraint(Sketcher.Constraint("Block", 28))
sketch4.addConstraint(Sketcher.Constraint("Block", 29))
sketch4.addConstraint(Sketcher.Constraint("Block", 30))
sketch4.addConstraint(Sketcher.Constraint("Coincident", 19, 2, 20, 2))
sketch4.addConstraint(Sketcher.Constraint("Coincident", 22, 1, 23, 1))
sketch4.addConstraint(Sketcher.Constraint("Coincident", 23, 2, 24, 1))
sketch4.addConstraint(Sketcher.Constraint("Coincident", 24, 2, 25, 1))
sketch4.addConstraint(Sketcher.Constraint("Coincident", 25, 2, 26, 1))
sketch4.addConstraint(Sketcher.Constraint("Coincident", 26, 2, 27, 1))
sketch4.addConstraint(Sketcher.Constraint("Coincident", 27, 2, 28, 2))
sketch4.addConstraint(Sketcher.Constraint("Coincident", 30, 1, 19, 1))
sketch4.addConstraint(Sketcher.Constraint("Horizontal", 0))
sketch4.addConstraint(Sketcher.Constraint("Horizontal", 2))
sketch4.addConstraint(Sketcher.Constraint("Vertical", 3))
sketch4.addConstraint(Sketcher.Constraint("Horizontal", 4))
sketch4.addConstraint(Sketcher.Constraint("Vertical", 5))
sketch4.addConstraint(Sketcher.Constraint("Horizontal", 6))
sketch4.addConstraint(Sketcher.Constraint("Vertical", 7))
sketch4.addConstraint(Sketcher.Constraint("Horizontal", 8))
sketch4.addConstraint(Sketcher.Constraint("Vertical", 9))
sketch4.addConstraint(Sketcher.Constraint("Horizontal", 10))
sketch4.addConstraint(Sketcher.Constraint("Vertical", 12))
sketch4.addConstraint(Sketcher.Constraint("Horizontal", 13))
sketch4.addConstraint(Sketcher.Constraint("Vertical", 14))
sketch4.addConstraint(Sketcher.Constraint("Horizontal", 15))
sketch4.addConstraint(Sketcher.Constraint("Horizontal", 24))
sketch4.addConstraint(Sketcher.Constraint("Vertical", 25))
sketch4.addConstraint(Sketcher.Constraint("Horizontal", 26))
sketch4.addConstraint(Sketcher.Constraint("DistanceY", 13, 2, 23, 2, 0.5))
sketch4.addConstraint(Sketcher.Constraint("DistanceX", 2, 1, 2, 2, 0.237179))
sketch4.addConstraint(Sketcher.Constraint("DistanceX", 4, 1, 4, 2, 0.044872))
sketch4.addConstraint(Sketcher.Constraint("DistanceX", 10, 2, 10, 1, 0.149038))
sketch4.addConstraint(Sketcher.Constraint("DistanceX", 15, 1, 15, 2, 0.231771))
sketch4.addConstraint(Sketcher.Constraint("DistanceY", -1, 1, 3, 2, 0.2803))
sketch4.addConstraint(Sketcher.Constraint("DistanceY", 13, 2, -1, 1, 0.2197))
sketch4.addConstraint(Sketcher.Constraint("DistanceX", 13, 2, 0, 2, 0.625501))
sketch4.addConstraint(Sketcher.Constraint("DistanceX", 17, 2, 15, 2, 0.186899))
sketch4.addConstraint(Sketcher.Constraint("DistanceX", 26, 2, 27, 2, 0.1251))
sketch4.addConstraint(Sketcher.Constraint("Distance", 1, 0.48213))
sketch4.addConstraint(Sketcher.Constraint("DistanceX", 0, 2, 0, 1, 0.009115))
sketch4.addConstraint(Sketcher.Constraint("DistanceX", 6, 1, 6, 2, 0.057692))
sketch4.addConstraint(Sketcher.Constraint("DistanceX", 8, 2, 8, 1, 0.057692))
sketch4.addConstraint(Sketcher.Constraint("DistanceX", 13, 2, 13, 1, 0.307692))
sketch4.addConstraint(Sketcher.Constraint("DistanceX", 24, 1, 24, 2, 0.339744))
sketch4.addConstraint(Sketcher.Constraint("DistanceX", 26, 2, 26, 1, 0.232672))
sketch4.addConstraint(Sketcher.Constraint("DistanceY", 3, 1, 3, 2, 0.115385))
sketch4.addConstraint(Sketcher.Constraint("DistanceY", 5, 2, 5, 1, 0.115385))
sketch4.addConstraint(Sketcher.Constraint("DistanceY", 7, 2, 7, 1, 0.051282))
sketch4.addConstraint(Sketcher.Constraint("DistanceY", 12, 1, 12, 2, 0.217147))
sketch4.addConstraint(Sketcher.Constraint("DistanceY", 14, 1, 14, 2, 0.051282))
sketch4.addConstraint(Sketcher.Constraint("DistanceY", 25, 2, 25, 1, 0.051282))
sketch4.addConstraint(Sketcher.Constraint("DistanceX", -1, 1, 1, 2, 0.211538))
sketch4.addConstraint(Sketcher.Constraint("DistanceX", -1, 1, 10, 2, 0.299679))
sketch4.addConstraint(Sketcher.Constraint("DistanceY", -1, 1, 17, 2, 0.29312))
sketch4.addConstraint(Sketcher.Constraint("DistanceY", 14, 2, 10, 2, 0.282051))
sketch4.addConstraint(Sketcher.Constraint("DistanceY", 1, 2, 16, 2, 0.106871))
sketch4.addConstraint(Sketcher.Constraint("DistanceX", 14, 2, 16, 2, 0.00611))
pad3 = doc.addObject("PartDesign::Pad", "Pad002")
body.addObject(pad3)
pad3.Profile = sketch4
pad3.setExpression("Length", "Params.pad3_length")
pad3.Reversed = True

doc.recompute()
